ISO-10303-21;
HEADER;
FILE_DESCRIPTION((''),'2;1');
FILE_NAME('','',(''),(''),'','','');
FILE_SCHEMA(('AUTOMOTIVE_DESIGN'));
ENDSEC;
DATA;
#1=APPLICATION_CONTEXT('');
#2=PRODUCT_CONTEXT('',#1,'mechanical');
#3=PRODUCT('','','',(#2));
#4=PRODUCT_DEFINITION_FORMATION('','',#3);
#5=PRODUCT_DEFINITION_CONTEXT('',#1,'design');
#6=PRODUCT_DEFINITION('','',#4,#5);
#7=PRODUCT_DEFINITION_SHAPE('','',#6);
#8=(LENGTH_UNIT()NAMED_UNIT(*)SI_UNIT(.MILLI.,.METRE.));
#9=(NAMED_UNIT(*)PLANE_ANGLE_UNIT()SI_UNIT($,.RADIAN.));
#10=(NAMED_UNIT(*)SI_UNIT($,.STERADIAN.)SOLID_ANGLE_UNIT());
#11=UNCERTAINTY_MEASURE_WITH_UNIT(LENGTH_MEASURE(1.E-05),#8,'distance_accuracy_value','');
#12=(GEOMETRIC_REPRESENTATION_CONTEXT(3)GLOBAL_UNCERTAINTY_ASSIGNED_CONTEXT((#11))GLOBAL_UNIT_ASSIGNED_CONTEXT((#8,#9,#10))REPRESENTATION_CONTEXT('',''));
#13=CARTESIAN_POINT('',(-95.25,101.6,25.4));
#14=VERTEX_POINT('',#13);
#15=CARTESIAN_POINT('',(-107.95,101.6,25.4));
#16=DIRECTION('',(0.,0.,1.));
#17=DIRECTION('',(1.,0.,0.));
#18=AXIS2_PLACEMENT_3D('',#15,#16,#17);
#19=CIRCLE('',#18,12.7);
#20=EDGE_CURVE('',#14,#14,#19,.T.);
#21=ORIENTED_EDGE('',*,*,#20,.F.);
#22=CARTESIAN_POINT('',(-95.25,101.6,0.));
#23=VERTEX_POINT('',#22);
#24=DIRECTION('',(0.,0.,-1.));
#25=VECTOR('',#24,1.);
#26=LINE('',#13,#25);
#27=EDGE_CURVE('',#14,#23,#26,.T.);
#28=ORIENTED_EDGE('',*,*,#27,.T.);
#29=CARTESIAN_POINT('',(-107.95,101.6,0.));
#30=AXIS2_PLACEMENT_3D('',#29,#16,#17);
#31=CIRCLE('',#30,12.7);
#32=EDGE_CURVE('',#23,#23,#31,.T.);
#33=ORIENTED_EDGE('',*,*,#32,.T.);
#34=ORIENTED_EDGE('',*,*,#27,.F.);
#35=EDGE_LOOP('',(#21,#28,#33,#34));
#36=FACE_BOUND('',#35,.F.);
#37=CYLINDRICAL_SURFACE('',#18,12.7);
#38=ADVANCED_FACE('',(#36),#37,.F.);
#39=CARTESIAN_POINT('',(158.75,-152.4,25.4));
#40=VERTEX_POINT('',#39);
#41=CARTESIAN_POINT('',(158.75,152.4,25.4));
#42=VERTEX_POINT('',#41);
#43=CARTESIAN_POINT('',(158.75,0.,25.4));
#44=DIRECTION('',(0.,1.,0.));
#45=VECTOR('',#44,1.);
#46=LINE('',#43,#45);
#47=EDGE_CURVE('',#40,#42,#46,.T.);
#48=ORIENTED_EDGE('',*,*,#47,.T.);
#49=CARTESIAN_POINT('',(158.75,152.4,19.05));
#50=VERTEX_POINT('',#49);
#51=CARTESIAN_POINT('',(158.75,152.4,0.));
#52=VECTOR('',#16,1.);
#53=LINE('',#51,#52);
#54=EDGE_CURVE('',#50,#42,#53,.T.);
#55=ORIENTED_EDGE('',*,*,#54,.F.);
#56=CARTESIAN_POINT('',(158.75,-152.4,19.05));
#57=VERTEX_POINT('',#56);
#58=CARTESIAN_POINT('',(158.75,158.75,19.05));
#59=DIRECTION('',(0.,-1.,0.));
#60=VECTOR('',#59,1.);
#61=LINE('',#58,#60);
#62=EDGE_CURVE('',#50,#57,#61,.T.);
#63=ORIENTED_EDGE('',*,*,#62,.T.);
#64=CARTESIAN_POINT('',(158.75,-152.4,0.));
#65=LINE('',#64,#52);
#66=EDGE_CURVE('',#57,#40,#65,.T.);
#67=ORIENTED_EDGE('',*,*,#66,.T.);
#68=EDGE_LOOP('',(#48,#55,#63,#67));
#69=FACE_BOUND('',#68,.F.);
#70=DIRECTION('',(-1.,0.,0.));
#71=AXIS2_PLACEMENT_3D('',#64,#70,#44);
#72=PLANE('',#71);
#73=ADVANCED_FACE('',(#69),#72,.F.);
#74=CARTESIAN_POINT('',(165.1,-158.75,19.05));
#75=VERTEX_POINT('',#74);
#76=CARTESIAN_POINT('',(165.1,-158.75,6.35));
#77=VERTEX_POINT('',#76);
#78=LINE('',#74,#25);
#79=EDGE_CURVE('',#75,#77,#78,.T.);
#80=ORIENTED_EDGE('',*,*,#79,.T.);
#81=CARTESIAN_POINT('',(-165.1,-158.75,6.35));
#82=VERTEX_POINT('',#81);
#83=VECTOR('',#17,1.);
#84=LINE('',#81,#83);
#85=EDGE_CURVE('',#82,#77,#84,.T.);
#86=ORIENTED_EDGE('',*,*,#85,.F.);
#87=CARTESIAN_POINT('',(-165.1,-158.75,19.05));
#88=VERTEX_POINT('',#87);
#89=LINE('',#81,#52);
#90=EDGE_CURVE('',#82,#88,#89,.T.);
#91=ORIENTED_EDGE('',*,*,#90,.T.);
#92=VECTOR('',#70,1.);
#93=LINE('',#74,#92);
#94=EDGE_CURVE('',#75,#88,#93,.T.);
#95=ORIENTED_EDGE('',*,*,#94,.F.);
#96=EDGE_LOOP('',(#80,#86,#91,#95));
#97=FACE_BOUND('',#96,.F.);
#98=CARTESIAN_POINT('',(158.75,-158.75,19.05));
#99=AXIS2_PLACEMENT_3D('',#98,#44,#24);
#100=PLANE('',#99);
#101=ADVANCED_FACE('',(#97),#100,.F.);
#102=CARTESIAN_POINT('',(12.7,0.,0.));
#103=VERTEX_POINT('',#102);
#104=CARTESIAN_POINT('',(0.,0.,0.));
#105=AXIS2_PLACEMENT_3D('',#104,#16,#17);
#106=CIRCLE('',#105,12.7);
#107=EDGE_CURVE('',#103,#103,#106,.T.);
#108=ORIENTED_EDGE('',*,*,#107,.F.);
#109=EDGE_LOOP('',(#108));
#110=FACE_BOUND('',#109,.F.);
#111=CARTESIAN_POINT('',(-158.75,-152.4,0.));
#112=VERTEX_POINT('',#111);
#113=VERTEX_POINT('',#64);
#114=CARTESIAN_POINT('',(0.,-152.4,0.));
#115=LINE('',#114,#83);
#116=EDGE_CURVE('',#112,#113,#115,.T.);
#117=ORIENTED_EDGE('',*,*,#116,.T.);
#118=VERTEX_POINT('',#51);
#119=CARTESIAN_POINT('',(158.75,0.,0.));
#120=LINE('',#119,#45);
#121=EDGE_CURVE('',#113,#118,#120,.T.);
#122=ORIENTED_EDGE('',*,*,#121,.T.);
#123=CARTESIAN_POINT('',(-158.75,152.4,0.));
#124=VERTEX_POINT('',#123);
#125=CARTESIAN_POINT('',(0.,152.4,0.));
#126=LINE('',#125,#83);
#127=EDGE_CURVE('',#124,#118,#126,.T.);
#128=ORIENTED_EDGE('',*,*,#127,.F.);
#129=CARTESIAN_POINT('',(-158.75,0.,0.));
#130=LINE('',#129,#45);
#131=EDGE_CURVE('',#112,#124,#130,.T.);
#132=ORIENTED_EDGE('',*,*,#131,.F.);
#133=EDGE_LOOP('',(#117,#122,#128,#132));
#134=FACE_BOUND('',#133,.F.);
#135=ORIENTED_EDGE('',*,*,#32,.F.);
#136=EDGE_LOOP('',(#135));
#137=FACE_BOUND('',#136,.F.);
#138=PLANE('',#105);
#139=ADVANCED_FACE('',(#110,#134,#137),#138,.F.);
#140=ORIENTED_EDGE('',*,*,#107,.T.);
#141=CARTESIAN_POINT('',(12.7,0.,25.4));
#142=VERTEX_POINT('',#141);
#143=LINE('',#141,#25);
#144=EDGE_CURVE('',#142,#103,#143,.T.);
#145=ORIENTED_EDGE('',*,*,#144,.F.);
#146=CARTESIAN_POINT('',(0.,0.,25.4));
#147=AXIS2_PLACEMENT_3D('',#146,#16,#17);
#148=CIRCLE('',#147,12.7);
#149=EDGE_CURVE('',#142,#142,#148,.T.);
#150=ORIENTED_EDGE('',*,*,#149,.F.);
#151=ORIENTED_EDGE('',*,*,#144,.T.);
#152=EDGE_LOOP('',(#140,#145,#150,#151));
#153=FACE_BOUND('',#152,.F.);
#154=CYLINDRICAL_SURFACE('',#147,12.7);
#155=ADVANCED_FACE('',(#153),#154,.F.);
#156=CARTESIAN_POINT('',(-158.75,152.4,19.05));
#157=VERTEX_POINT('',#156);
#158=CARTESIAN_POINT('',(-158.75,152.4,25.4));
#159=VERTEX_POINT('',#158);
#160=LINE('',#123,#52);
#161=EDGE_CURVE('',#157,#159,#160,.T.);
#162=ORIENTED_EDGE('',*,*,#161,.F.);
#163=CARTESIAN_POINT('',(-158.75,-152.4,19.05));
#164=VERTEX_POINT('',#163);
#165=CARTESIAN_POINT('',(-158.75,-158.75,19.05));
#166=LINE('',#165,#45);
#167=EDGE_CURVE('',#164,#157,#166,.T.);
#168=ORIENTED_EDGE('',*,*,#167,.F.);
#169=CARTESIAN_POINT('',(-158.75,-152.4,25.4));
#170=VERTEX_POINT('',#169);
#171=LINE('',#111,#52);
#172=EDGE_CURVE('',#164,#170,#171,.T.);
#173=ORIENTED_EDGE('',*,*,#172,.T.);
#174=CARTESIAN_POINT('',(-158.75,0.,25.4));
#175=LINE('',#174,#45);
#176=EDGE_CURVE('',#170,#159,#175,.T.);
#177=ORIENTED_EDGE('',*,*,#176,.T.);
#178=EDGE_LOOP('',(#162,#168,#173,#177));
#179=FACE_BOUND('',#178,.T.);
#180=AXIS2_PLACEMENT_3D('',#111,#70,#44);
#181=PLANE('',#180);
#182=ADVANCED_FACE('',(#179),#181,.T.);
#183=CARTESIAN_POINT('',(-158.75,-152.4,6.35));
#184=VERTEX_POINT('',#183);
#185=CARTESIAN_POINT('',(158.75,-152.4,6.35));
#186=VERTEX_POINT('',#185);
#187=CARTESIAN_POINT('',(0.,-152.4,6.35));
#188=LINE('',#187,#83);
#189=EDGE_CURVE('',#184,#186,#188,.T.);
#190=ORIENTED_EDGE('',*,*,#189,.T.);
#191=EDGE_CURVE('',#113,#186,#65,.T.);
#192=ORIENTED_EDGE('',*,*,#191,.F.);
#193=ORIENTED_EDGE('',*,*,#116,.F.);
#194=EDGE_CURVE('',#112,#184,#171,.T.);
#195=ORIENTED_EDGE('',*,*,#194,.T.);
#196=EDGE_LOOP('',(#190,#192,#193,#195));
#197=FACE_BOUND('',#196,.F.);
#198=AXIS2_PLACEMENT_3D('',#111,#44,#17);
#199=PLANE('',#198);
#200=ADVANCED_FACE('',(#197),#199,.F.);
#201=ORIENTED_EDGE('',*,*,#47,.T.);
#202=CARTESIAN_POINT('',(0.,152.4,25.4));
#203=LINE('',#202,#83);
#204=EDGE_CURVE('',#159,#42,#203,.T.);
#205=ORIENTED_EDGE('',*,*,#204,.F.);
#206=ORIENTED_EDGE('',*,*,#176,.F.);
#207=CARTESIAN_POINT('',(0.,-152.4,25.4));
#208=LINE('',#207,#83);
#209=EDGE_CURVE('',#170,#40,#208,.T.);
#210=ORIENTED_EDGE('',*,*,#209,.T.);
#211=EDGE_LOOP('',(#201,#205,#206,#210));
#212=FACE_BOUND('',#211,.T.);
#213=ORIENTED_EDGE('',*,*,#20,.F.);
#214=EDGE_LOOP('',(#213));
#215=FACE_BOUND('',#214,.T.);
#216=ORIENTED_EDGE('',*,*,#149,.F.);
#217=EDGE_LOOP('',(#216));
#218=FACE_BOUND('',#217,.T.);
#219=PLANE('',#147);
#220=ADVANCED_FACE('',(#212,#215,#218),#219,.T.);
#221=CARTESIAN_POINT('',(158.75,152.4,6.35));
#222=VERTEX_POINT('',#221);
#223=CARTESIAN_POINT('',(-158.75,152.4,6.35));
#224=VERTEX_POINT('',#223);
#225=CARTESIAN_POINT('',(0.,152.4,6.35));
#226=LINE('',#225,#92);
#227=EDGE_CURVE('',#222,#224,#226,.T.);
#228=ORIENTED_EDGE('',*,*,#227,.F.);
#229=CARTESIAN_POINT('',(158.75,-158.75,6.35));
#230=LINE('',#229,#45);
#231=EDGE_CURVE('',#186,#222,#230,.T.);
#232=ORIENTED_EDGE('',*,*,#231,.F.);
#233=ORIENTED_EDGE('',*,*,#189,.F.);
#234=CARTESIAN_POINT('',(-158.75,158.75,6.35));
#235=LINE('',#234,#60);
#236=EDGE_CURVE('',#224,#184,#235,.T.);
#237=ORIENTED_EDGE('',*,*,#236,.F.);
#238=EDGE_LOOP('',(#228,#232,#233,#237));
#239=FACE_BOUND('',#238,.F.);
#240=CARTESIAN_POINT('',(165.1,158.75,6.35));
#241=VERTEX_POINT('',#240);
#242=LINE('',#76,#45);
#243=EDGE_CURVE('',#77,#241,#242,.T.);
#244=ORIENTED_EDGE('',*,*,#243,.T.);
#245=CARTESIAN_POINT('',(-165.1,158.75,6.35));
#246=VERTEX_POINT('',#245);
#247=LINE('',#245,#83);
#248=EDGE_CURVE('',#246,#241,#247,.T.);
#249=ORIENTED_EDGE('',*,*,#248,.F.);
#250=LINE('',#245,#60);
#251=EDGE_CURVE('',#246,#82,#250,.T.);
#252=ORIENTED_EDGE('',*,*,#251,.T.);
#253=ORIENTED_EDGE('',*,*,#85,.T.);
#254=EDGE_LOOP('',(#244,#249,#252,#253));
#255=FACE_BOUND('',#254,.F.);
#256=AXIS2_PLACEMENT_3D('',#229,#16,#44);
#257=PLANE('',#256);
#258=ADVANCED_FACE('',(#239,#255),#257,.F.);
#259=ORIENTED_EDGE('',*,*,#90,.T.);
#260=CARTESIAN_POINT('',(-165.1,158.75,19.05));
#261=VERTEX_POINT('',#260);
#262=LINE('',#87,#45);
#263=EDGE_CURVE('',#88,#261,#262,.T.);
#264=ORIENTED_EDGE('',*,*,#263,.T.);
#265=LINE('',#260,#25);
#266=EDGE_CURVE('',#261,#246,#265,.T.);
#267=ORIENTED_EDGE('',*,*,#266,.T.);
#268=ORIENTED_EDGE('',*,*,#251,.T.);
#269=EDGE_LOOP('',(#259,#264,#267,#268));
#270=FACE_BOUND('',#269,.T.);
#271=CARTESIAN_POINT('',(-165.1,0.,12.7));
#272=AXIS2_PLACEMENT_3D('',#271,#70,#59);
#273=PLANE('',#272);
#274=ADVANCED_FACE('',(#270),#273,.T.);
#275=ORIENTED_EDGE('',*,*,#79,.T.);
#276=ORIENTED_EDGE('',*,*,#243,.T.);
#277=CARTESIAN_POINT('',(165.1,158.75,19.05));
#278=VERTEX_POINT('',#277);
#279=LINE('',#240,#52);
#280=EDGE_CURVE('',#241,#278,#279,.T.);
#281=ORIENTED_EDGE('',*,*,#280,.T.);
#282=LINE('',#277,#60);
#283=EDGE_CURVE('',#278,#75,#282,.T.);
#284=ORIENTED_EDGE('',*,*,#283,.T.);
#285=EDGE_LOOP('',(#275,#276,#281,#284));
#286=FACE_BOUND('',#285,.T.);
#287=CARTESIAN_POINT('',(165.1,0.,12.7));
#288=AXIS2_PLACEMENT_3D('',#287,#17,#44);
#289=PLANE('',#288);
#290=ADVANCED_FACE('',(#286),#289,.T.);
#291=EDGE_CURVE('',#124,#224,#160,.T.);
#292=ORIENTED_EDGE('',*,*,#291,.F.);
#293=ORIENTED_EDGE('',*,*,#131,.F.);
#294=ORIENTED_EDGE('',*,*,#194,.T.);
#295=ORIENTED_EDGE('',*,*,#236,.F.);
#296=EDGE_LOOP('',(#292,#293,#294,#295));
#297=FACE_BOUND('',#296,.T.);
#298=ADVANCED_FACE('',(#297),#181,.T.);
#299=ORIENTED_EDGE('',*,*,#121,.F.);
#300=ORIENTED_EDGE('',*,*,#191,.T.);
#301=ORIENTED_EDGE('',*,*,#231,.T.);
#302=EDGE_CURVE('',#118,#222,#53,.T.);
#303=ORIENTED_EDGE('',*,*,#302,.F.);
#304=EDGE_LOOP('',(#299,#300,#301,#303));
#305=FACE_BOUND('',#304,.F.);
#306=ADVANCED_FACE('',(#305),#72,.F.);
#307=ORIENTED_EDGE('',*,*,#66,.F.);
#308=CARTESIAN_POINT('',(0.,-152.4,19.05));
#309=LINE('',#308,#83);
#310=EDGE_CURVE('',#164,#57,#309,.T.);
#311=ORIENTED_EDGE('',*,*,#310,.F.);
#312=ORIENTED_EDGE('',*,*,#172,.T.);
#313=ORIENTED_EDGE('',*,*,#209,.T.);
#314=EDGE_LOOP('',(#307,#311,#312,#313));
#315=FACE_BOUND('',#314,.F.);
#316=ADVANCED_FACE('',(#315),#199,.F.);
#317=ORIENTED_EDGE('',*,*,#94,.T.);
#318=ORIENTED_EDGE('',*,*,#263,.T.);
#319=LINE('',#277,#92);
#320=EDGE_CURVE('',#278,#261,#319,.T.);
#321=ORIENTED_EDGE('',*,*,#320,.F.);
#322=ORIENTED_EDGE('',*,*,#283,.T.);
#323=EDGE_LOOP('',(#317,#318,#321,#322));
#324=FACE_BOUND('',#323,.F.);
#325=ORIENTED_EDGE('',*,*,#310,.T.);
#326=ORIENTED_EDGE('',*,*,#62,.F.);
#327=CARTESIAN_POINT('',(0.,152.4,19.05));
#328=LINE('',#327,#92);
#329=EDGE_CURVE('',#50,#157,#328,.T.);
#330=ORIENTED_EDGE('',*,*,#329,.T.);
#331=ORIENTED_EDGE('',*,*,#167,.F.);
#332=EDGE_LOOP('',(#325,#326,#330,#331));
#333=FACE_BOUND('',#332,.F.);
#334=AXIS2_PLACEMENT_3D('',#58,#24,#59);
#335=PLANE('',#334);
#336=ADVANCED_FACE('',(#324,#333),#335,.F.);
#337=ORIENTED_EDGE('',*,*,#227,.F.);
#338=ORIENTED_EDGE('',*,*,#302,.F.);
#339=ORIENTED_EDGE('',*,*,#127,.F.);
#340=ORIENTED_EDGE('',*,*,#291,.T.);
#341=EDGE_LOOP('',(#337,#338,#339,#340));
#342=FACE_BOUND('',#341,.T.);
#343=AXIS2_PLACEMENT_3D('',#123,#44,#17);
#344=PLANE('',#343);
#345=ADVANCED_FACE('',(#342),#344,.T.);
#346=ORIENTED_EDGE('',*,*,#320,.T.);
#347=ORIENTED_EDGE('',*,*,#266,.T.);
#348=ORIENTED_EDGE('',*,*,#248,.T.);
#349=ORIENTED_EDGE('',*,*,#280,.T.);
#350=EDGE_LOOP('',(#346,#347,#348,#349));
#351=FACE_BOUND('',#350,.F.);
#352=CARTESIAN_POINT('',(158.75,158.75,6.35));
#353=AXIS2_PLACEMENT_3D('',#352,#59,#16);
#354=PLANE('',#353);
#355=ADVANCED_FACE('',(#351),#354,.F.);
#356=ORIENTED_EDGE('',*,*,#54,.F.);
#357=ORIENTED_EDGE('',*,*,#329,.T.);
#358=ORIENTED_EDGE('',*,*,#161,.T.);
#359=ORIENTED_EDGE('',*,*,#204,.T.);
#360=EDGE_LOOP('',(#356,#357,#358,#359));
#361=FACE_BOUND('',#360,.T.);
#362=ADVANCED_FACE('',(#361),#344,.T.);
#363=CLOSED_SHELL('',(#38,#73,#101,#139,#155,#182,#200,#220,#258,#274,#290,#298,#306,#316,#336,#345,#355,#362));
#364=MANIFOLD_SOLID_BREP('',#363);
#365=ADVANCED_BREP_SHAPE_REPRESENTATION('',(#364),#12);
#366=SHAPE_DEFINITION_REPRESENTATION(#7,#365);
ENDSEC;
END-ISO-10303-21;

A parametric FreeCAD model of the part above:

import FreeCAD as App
import Part
import Sketcher
from FreeCAD import Vector
Q = App.Units.Quantity


def add_polygon(sketch, points):
    """Adds a closed chain of lines whose ends are joined by coincident constraints."""
    first, n = sketch.GeometryCount, len(points)
    for a, b in zip(points, points[1:] + points[:1]):
        sketch.addGeometry(Part.LineSegment(App.Vector(*a, 0), App.Vector(*b, 0)), False)
    for i in range(n):
        sketch.addConstraint(Sketcher.Constraint("Coincident", first + i, 2, first + (i + 1) % n, 1))

doc = App.newDocument("Part")
body = doc.addObject("PartDesign::Body", "Body")

sketch1 = doc.addObject("Sketcher::SketchObject", "Sketch")
body.addObject(sketch1)
sketch1.AttachmentSupport = (doc.XY_Plane, [""])
sketch1.MapMode = "FlatFace"
add_polygon(sketch1, [(-159, 152), (-159, -152), (159, -152), (159, 152)])
sketch1.addConstraint([
    Sketcher.Constraint("Vertical", 0),
    Sketcher.Constraint("Horizontal", 1),
    Sketcher.Constraint("Vertical", 2),
    Sketcher.Constraint("Horizontal", 3),
    Sketcher.Constraint("Symmetric", 0, 2, 2, 2, -1, 1),
    Sketcher.Constraint("DistanceY", 0, 2, 0, 1, Q("12 in")),
    Sketcher.Constraint("DistanceX", 1, 1, 1, 2, Q("12.5 in")),
])
pad1 = doc.addObject("PartDesign::Pad", "Pad")
body.addObject(pad1)
pad1.Profile = sketch1
pad1.Length = Q("1 in")

sketch2 = doc.addObject("Sketcher::SketchObject", "Sketch001")
body.addObject(sketch2)
sketch2.AttachmentSupport = (doc.XZ_Plane, [""])
sketch2.MapMode = "FlatFace"
sketch2.AttachmentOffset = App.Placement(Vector(0, 0, 6 * 25.4), App.Rotation())
add_polygon(sketch2, [(-159, 19), (-159, 6), (159, 6), (159, 19)])
sketch2.addConstraint([
    Sketcher.Constraint("Vertical", 0),
    Sketcher.Constraint("Horizontal", 1),
    Sketcher.Constraint("Vertical", 2),
    Sketcher.Constraint("Horizontal", 3),
    Sketcher.Constraint("DistanceX", 1, 1, 1, 2, Q("12.5 in")),
    Sketcher.Constraint("DistanceY", 0, 2, 0, 1, Q("0.5 in")),
    Sketcher.Constraint("DistanceX", 0, 2, -1, 1, Q("6.25 in")),
    Sketcher.Constraint("DistanceY", -1, 1, 0, 2, Q("0.25 in")),
])
pad2 = doc.addObject("PartDesign::Pad", "Pad001")
body.addObject(pad2)
pad2.Profile = sketch2
pad2.Length = Q("0.25 in")

sketch3 = doc.addObject("Sketcher::SketchObject", "Sketch002")
body.addObject(sketch3)
sketch3.AttachmentSupport = (doc.XZ_Plane, [""])
sketch3.MapMode = "FlatFace"
sketch3.AttachmentOffset = App.Placement(Vector(0, 0, -6 * 25.4), App.Rotation())
add_polygon(sketch3, [(159, 19), (159, 6), (-159, 6), (-159, 19)])
sketch3.addConstraint([
    Sketcher.Constraint("Vertical", 0),
    Sketcher.Constraint("Horizontal", 1),
    Sketcher.Constraint("Vertical", 2),
    Sketcher.Constraint("Horizontal", 3),
    Sketcher.Constraint("DistanceX", 1, 2, 1, 1, Q("12.5 in")),
    Sketcher.Constraint("DistanceY", 0, 2, 0, 1, Q("0.5 in")),
    Sketcher.Constraint("DistanceX", -1, 1, 0, 2, Q("6.25 in")),
    Sketcher.Constraint("DistanceY", -1, 1, 0, 2, Q("0.25 in")),
])
pad3 = doc.addObject("PartDesign::Pad", "Pad002")
body.addObject(pad3)
pad3.Profile = sketch3
pad3.Length = Q("0.25 in")
pad3.Reversed = True

sketch4 = doc.addObject("Sketcher::SketchObject", "Sketch003")
body.addObject(sketch4)
sketch4.AttachmentSupport = (doc.YZ_Plane, [""])
sketch4.MapMode = "FlatFace"
sketch4.AttachmentOffset = App.Placement(Vector(0, 0, -6.25 * 25.4), App.Rotation())
add_polygon(sketch4, [(159, 19), (159, 6), (-159, 6), (-159, 19)])
sketch4.addConstraint([
    Sketcher.Constraint("Vertical", 0),
    Sketcher.Constraint("Horizontal", 1),
    Sketcher.Constraint("Vertical", 2),
    Sketcher.Constraint("Horizontal", 3),
    Sketcher.Constraint("DistanceX", 1, 2, 1, 1, Q("12.5 in")),
    Sketcher.Constraint("DistanceY", 0, 2, 0, 1, Q("0.5 in")),
    Sketcher.Constraint("DistanceX", -1, 1, 0, 2, Q("6.25 in")),
    Sketcher.Constraint("DistanceY", -1, 1, 0, 2, Q("0.25 in")),
])
pad4 = doc.addObject("PartDesign::Pad", "Pad003")
body.addObject(pad4)
pad4.Profile = sketch4
pad4.Length = Q("0.25 in")
pad4.Reversed = True

sketch5 = doc.addObject("Sketcher::SketchObject", "Sketch004")
body.addObject(sketch5)
sketch5.AttachmentSupport = (doc.YZ_Plane, [""])
sketch5.MapMode = "FlatFace"
sketch5.AttachmentOffset = App.Placement(Vector(0, 0, 6.25 * 25.4), App.Rotation())
add_polygon(sketch5, [(-159, 19), (-159, 6), (159, 6), (159, 19)])
sketch5.addConstraint([
    Sketcher.Constraint("Vertical", 0),
    Sketcher.Constraint("Horizontal", 1),
    Sketcher.Constraint("Vertical", 2),
    Sketcher.Constraint("Horizontal", 3),
    Sketcher.Constraint("DistanceX", 1, 1, 1, 2, Q("12.5 in")),
    Sketcher.Constraint("DistanceY", 0, 2, 0, 1, Q("0.5 in")),
    Sketcher.Constraint("DistanceX", 0, 2, -1, 1, Q("6.25 in")),
    Sketcher.Constraint("DistanceY", -1, 1, 0, 2, Q("0.25 in")),
])
pad5 = doc.addObject("PartDesign::Pad", "Pad004")
body.addObject(pad5)
pad5.Profile = sketch5
pad5.Length = Q("0.25 in")

sketch6 = doc.addObject("Sketcher::SketchObject", "Sketch005")
body.addObject(sketch6)
sketch6.AttachmentSupport = (doc.XY_Plane, [""])
sketch6.MapMode = "FlatFace"
sketch6.AttachmentOffset = App.Placement(Vector(0, 0, 1 * 25.4), App.Rotation())
sketch6.addGeometry(Part.Circle(Vector(-108, 102, 0), Vector(0, 0, 1), 13), False)
sketch6.addConstraint([
    Sketcher.Constraint("Diameter", 0, Q("1 in")),
    Sketcher.Constraint("DistanceY", -1, 1, 0, 3, Q("4 in")),
    Sketcher.Constraint("DistanceX", 0, 3, -1, 1, Q("4.25 in")),
])
pocket1 = doc.addObject("PartDesign::Pocket", "Pocket")
body.addObject(pocket1)
pocket1.Profile = sketch6
pocket1.Length = Q("1 in")

sketch7 = doc.addObject("Sketcher::SketchObject", "Sketch006")
body.addObject(sketch7)
sketch7.AttachmentSupport = (doc.XY_Plane, [""])
sketch7.MapMode = "FlatFace"
sketch7.AttachmentOffset = App.Placement(Vector(0, 0, 1 * 25.4), App.Rotation())
sketch7.addGeometry(Part.Circle(Vector(0, 0, 0), Vector(0, 0, 1), 13), False)
sketch7.addConstraint([
    Sketcher.Constraint("Coincident", 0, 3, -1, 1),
    Sketcher.Constraint("Diameter", 0, Q("1 in")),
])
pocket2 = doc.addObject("PartDesign::Pocket", "Pocket001")
body.addObject(pocket2)
pocket2.Profile = sketch7
pocket2.Length = Q("1 in")

doc.recompute()
